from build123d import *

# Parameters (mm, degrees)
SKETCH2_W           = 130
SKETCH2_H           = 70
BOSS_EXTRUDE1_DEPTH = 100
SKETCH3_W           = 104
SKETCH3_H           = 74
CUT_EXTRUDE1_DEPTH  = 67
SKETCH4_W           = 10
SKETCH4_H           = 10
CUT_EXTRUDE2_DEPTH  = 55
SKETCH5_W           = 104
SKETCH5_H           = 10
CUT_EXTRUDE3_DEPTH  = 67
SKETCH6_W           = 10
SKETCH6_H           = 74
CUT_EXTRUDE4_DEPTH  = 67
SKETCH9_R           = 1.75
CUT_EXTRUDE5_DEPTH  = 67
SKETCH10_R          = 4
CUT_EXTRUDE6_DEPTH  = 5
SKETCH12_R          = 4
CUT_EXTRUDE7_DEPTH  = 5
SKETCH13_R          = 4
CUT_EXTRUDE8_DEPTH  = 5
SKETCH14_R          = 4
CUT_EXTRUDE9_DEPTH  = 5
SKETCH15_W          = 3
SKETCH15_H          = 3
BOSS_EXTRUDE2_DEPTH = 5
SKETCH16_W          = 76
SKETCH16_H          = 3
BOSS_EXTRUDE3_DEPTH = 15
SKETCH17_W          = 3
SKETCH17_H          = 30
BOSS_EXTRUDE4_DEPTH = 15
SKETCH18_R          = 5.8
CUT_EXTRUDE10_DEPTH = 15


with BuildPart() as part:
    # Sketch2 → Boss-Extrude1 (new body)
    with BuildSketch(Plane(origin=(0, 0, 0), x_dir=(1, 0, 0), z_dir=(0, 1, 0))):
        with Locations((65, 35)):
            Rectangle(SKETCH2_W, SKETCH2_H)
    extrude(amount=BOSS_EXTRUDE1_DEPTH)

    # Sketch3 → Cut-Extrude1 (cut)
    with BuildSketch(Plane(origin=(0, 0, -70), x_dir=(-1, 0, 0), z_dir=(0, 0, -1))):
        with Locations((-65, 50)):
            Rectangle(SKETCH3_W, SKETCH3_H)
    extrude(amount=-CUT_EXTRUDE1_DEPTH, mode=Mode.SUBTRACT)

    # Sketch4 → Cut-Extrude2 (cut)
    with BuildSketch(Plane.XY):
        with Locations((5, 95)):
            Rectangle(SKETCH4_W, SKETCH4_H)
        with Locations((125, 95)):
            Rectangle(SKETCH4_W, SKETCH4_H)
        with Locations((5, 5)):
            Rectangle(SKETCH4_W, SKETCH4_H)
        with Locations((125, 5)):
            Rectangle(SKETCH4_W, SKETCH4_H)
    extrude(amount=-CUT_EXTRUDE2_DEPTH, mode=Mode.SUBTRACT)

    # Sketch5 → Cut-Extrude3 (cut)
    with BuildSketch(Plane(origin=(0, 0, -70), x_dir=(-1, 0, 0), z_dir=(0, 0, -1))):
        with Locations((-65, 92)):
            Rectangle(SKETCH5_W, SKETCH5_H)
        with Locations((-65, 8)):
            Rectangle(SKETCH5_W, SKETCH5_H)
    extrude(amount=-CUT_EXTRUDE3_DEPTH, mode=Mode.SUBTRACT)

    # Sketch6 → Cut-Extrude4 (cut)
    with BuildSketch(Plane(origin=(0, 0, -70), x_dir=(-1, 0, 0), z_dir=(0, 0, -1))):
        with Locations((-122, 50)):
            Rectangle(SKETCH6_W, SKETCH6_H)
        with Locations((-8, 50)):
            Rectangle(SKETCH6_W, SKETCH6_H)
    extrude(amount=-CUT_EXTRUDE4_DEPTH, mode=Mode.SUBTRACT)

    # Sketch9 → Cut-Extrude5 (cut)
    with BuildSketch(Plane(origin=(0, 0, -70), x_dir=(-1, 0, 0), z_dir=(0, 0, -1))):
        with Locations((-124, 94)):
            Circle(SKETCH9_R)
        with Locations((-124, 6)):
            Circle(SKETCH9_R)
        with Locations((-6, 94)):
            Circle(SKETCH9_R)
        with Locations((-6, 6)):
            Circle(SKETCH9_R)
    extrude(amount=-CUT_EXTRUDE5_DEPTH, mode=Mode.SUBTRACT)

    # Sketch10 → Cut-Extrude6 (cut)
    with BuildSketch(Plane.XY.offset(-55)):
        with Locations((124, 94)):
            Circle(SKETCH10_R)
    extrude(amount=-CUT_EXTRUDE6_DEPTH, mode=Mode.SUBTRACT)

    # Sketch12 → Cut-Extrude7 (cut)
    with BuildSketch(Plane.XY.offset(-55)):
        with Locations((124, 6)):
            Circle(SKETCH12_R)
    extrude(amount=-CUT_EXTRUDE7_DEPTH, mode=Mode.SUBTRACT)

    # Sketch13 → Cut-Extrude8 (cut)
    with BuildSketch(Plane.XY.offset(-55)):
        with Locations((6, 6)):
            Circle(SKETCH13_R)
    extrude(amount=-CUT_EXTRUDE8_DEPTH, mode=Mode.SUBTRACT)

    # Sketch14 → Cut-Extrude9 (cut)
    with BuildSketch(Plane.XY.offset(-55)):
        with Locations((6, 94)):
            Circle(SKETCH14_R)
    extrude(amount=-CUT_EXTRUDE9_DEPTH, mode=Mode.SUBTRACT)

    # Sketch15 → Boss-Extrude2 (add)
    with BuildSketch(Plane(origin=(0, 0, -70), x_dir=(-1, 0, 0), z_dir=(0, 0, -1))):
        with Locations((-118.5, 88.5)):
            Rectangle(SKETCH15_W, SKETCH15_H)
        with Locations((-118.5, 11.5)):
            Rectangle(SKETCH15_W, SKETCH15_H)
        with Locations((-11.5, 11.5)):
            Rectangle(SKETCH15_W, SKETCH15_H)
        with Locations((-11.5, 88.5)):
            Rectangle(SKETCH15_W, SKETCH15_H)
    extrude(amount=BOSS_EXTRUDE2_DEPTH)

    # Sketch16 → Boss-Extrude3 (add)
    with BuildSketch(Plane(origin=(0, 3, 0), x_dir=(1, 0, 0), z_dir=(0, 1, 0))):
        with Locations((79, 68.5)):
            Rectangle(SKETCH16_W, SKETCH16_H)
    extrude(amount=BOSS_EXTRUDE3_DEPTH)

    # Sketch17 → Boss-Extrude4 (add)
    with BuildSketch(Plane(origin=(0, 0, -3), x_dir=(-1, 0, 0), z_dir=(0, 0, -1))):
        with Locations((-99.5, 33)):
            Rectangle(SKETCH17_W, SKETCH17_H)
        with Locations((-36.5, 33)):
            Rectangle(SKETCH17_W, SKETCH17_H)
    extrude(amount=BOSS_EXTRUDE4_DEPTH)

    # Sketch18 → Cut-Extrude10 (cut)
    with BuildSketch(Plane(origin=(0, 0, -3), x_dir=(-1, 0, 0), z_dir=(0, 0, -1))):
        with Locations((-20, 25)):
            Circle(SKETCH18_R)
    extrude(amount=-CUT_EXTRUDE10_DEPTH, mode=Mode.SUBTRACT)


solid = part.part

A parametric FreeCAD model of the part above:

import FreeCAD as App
import Part
import Sketcher

V = App.Vector
Q = App.Units.Quantity

doc = App.newDocument("Part")
body = doc.addObject("PartDesign::Body", "Body")

sketch1 = doc.addObject("Sketcher::SketchObject", "Sketch")
body.addObject(sketch1)
sketch1.AttachmentSupport = (doc.XZ_Plane, [""])
sketch1.MapMode = "FlatFace"
sketch1.addGeometry(Part.LineSegment(V(0, -70, 0), V(0, 0, 0)), False)
sketch1.addGeometry(Part.LineSegment(V(0, 0, 0), V(130, 0, 0)), False)
sketch1.addGeometry(Part.LineSegment(V(130, 0, 0), V(130, -70, 0)), False)
sketch1.addGeometry(Part.LineSegment(V(130, -70, 0), V(0, -70, 0)), False)
sketch1.addConstraint(Sketcher.Constraint("Coincident", 0, 2, 1, 1))
sketch1.addConstraint(Sketcher.Constraint("Coincident", 1, 2, 2, 1))
sketch1.addConstraint(Sketcher.Constraint("Coincident", 2, 2, 3, 1))
sketch1.addConstraint(Sketcher.Constraint("Coincident", 3, 2, 0, 1))
sketch1.addConstraint(Sketcher.Constraint("Vertical", 0))
sketch1.addConstraint(Sketcher.Constraint("Horizontal", 1))
sketch1.addConstraint(Sketcher.Constraint("Vertical", 2))
sketch1.addConstraint(Sketcher.Constraint("Horizontal", 3))
sketch1.addConstraint(Sketcher.Constraint("Coincident", 0, 2, -1, 1))
sketch1.addConstraint(Sketcher.Constraint("DistanceX", 1, 1, 1, 2, Q("130 mm")))
sketch1.addConstraint(Sketcher.Constraint("DistanceY", 0, 1, 0, 2, Q("70 mm")))
pad1 = doc.addObject("PartDesign::Pad", "Pad")
body.addObject(pad1)
pad1.Profile = sketch1
pad1.Length = 100
pad1.Reversed = True

sketch2 = doc.addObject("Sketcher::SketchObject", "Sketch001")
body.addObject(sketch2)
sketch2.AttachmentSupport = (doc.XY_Plane, [""])
sketch2.MapMode = "FlatFace"
sketch2.AttachmentOffset = App.Placement(V(0, 0, -70), App.Rotation())
sketch2.addGeometry(Part.LineSegment(V(117, 87, 0), V(117, 13, 0)), False)
sketch2.addGeometry(Part.LineSegment(V(117, 13, 0), V(13, 13, 0)), False)
sketch2.addGeometry(Part.LineSegment(V(13, 13, 0), V(13, 87, 0)), False)
sketch2.addGeometry(Part.LineSegment(V(13, 87, 0), V(117, 87, 0)), False)
sketch2.addConstraint(Sketcher.Constraint("Coincident", 0, 2, 1, 1))
sketch2.addConstraint(Sketcher.Constraint("Coincident", 1, 2, 2, 1))
sketch2.addConstraint(Sketcher.Constraint("Coincident", 2, 2, 3, 1))
sketch2.addConstraint(Sketcher.Constraint("Coincident", 3, 2, 0, 1))
sketch2.addConstraint(Sketcher.Constraint("Vertical", 0))
sketch2.addConstraint(Sketcher.Constraint("Horizontal", 1))
sketch2.addConstraint(Sketcher.Constraint("Vertical", 2))
sketch2.addConstraint(Sketcher.Constraint("Horizontal", 3))
sketch2.addConstraint(Sketcher.Constraint("DistanceX", 1, 2, 1, 1, Q("104 mm")))
sketch2.addConstraint(Sketcher.Constraint("DistanceY", 0, 2, 0, 1, Q("74 mm")))
sketch2.addConstraint(Sketcher.Constraint("DistanceX", -1, 1, 0, 2, Q("117 mm")))
sketch2.addConstraint(Sketcher.Constraint("DistanceY", -1, 1, 0, 2, Q("13 mm")))
pocket1 = doc.addObject("PartDesign::Pocket", "Pocket")
body.addObject(pocket1)
pocket1.Profile = sketch2
pocket1.Length = 67
pocket1.Reversed = True

sketch3 = doc.addObject("Sketcher::SketchObject", "Sketch002")
body.addObject(sketch3)
sketch3.AttachmentSupport = (doc.XY_Plane, [""])
sketch3.MapMode = "FlatFace"
sketch3.addGeometry(Part.LineSegment(V(0, 100, 0), V(0, 90, 0)), False)
sketch3.addGeometry(Part.LineSegment(V(0, 90, 0), V(10, 90, 0)), False)
sketch3.addGeometry(Part.LineSegment(V(10, 90, 0), V(10, 100, 0)), False)
sketch3.addGeometry(Part.LineSegment(V(10, 100, 0), V(0, 100, 0)), False)
sketch3.addGeometry(Part.LineSegment(V(120, 100, 0), V(120, 90, 0)), False)
sketch3.addGeometry(Part.LineSegment(V(120, 90, 0), V(130, 90, 0)), False)
sketch3.addGeometry(Part.LineSegment(V(130, 90, 0), V(130, 100, 0)), False)
sketch3.addGeometry(Part.LineSegment(V(130, 100, 0), V(120, 100, 0)), False)
sketch3.addGeometry(Part.LineSegment(V(0, 10, 0), V(0, 0, 0)), False)
sketch3.addGeometry(Part.LineSegment(V(0, 0, 0), V(10, 0, 0)), False)
sketch3.addGeometry(Part.LineSegment(V(10, 0, 0), V(10, 10, 0)), False)
sketch3.addGeometry(Part.LineSegment(V(10, 10, 0), V(0, 10, 0)), False)
sketch3.addGeometry(Part.LineSegment(V(120, 10, 0), V(120, 0, 0)), False)
sketch3.addGeometry(Part.LineSegment(V(120, 0, 0), V(130, 0, 0)), False)
sketch3.addGeometry(Part.LineSegment(V(130, 0, 0), V(130, 10, 0)), False)
sketch3.addGeometry(Part.LineSegment(V(130, 10, 0), V(120, 10, 0)), False)
sketch3.addConstraint(Sketcher.Constraint("Coincident", 0, 2, 1, 1))
sketch3.addConstraint(Sketcher.Constraint("Coincident", 1, 2, 2, 1))
sketch3.addConstraint(Sketcher.Constraint("Coincident", 2, 2, 3, 1))
sketch3.addConstraint(Sketcher.Constraint("Coincident", 3, 2, 0, 1))
sketch3.addConstraint(Sketcher.Constraint("Coincident", 4, 2, 5, 1))
sketch3.addConstraint(Sketcher.Constraint("Coincident", 5, 2, 6, 1))
sketch3.addConstraint(Sketcher.Constraint("Coincident", 6, 2, 7, 1))
sketch3.addConstraint(Sketcher.Constraint("Coincident", 7, 2, 4, 1))
sketch3.addConstraint(Sketcher.Constraint("Coincident", 8, 2, 9, 1))
sketch3.addConstraint(Sketcher.Constraint("Coincident", 9, 2, 10, 1))
sketch3.addConstraint(Sketcher.Constraint("Coincident", 10, 2, 11, 1))
sketch3.addConstraint(Sketcher.Constraint("Coincident", 11, 2, 8, 1))
sketch3.addConstraint(Sketcher.Constraint("Coincident", 12, 2, 13, 1))
sketch3.addConstraint(Sketcher.Constraint("Coincident", 13, 2, 14, 1))
sketch3.addConstraint(Sketcher.Constraint("Coincident", 14, 2, 15, 1))
sketch3.addConstraint(Sketcher.Constraint("Coincident", 15, 2, 12, 1))
sketch3.addConstraint(Sketcher.Constraint("Vertical", 0))
sketch3.addConstraint(Sketcher.Constraint("Horizontal", 1))
sketch3.addConstraint(Sketcher.Constraint("Vertical", 2))
sketch3.addConstraint(Sketcher.Constraint("Horizontal", 3))
sketch3.addConstraint(Sketcher.Constraint("Vertical", 4))
sketch3.addConstraint(Sketcher.Constraint("Horizontal", 5))
sketch3.addConstraint(Sketcher.Constraint("Vertical", 6))
sketch3.addConstraint(Sketcher.Constraint("Horizontal", 7))
sketch3.addConstraint(Sketcher.Constraint("Vertical", 8))
sketch3.addConstraint(Sketcher.Constraint("Horizontal", 9))
sketch3.addConstraint(Sketcher.Constraint("Vertical", 10))
sketch3.addConstraint(Sketcher.Constraint("Horizontal", 11))
sketch3.addConstraint(Sketcher.Constraint("Vertical", 12))
sketch3.addConstraint(Sketcher.Constraint("Horizontal", 13))
sketch3.addConstraint(Sketcher.Constraint("Vertical", 14))
sketch3.addConstraint(Sketcher.Constraint("Horizontal", 15))
sketch3.addConstraint(Sketcher.Constraint("Coincident", 8, 2, -1, 1))
sketch3.addConstraint(Sketcher.Constraint("PointOnObject", 0, 2, -2))
sketch3.addConstraint(Sketcher.Constraint("PointOnObject", 12, 2, -1))
sketch3.addConstraint(Sketcher.Constraint("Horizontal", 1, 2, 4, 2))
sketch3.addConstraint(Sketcher.Constraint("Horizontal", 3, 2, 6, 2))
sketch3.addConstraint(Sketcher.Constraint("Horizontal", 11, 2, 14, 2))
sketch3.addConstraint(Sketcher.Constraint("Vertical", 2, 2, 9, 2))
sketch3.addConstraint(Sketcher.Constraint("Vertical", 7, 2, 12, 2))
sketch3.addConstraint(Sketcher.Constraint("Vertical", 6, 2, 13, 2))
sketch3.addConstraint(Sketcher.Constraint("Equal", 3, 5))
sketch3.addConstraint(Sketcher.Constraint("Equal", 15, 0))
sketch3.addConstraint(Sketcher.Constraint("Equal", 6, 8))
sketch3.addConstraint(Sketcher.Constraint("DistanceX", 1, 1, 1, 2, Q("10 mm")))
sketch3.addConstraint(Sketcher.Constraint("DistanceY", -1, 1, 0, 2, Q("90 mm")))
sketch3.addConstraint(Sketcher.Constraint("DistanceX", -1, 1, 4, 2, Q("120 mm")))
pocket2 = doc.addObject("PartDesign::Pocket", "Pocket001")
body.addObject(pocket2)
pocket2.Profile = sketch3
pocket2.Length = 55

sketch4 = doc.addObject("Sketcher::SketchObject", "Sketch003")
body.addObject(sketch4)
sketch4.AttachmentSupport = (doc.XY_Plane, [""])
sketch4.MapMode = "FlatFace"
sketch4.AttachmentOffset = App.Placement(V(0, 0, -70), App.Rotation())
sketch4.addGeometry(Part.LineSegment(V(117, 97, 0), V(117, 87, 0)), False)
sketch4.addGeometry(Part.LineSegment(V(117, 87, 0), V(13, 87, 0)), False)
sketch4.addGeometry(Part.LineSegment(V(13, 87, 0), V(13, 97, 0)), False)
sketch4.addGeometry(Part.LineSegment(V(13, 97, 0), V(117, 97, 0)), False)
sketch4.addGeometry(Part.LineSegment(V(117, 13, 0), V(117, 3, 0)), False)
sketch4.addGeometry(Part.LineSegment(V(117, 3, 0), V(13, 3, 0)), False)
sketch4.addGeometry(Part.LineSegment(V(13, 3, 0), V(13, 13, 0)), False)
sketch4.addGeometry(Part.LineSegment(V(13, 13, 0), V(117, 13, 0)), False)
sketch4.addConstraint(Sketcher.Constraint("Coincident", 0, 2, 1, 1))
sketch4.addConstraint(Sketcher.Constraint("Coincident", 1, 2, 2, 1))
sketch4.addConstraint(Sketcher.Constraint("Coincident", 2, 2, 3, 1))
sketch4.addConstraint(Sketcher.Constraint("Coincident", 3, 2, 0, 1))
sketch4.addConstraint(Sketcher.Constraint("Coincident", 4, 2, 5, 1))
sketch4.addConstraint(Sketcher.Constraint("Coincident", 5, 2, 6, 1))
sketch4.addConstraint(Sketcher.Constraint("Coincident", 6, 2, 7, 1))
sketch4.addConstraint(Sketcher.Constraint("Coincident", 7, 2, 4, 1))
sketch4.addConstraint(Sketcher.Constraint("Vertical", 0))
sketch4.addConstraint(Sketcher.Constraint("Horizontal", 1))
sketch4.addConstraint(Sketcher.Constraint("Vertical", 2))
sketch4.addConstraint(Sketcher.Constraint("Horizontal", 3))
sketch4.addConstraint(Sketcher.Constraint("Vertical", 4))
sketch4.addConstraint(Sketcher.Constraint("Horizontal", 5))
sketch4.addConstraint(Sketcher.Constraint("Vertical", 6))
sketch4.addConstraint(Sketcher.Constraint("Horizontal", 7))
sketch4.addConstraint(Sketcher.Constraint("Vertical", 3, 2, 4, 2))
sketch4.addConstraint(Sketcher.Constraint("Vertical", 2, 2, 5, 2))
sketch4.addConstraint(Sketcher.Constraint("Equal", 2, 4))
sketch4.addConstraint(Sketcher.Constraint("DistanceX", 1, 2, 1, 1, Q("104 mm")))
sketch4.addConstraint(Sketcher.Constraint("DistanceY", 0, 2, 0, 1, Q("10 mm")))
sketch4.addConstraint(Sketcher.Constraint("DistanceX", -1, 1, 0, 2, Q("117 mm")))
sketch4.addConstraint(Sketcher.Constraint("DistanceY", -1, 1, 0, 2, Q("87 mm")))
sketch4.addConstraint(Sketcher.Constraint("DistanceY", -1, 1, 4, 2, Q("3 mm")))
pocket3 = doc.addObject("PartDesign::Pocket", "Pocket002")
body.addObject(pocket3)
pocket3.Profile = sketch4
pocket3.Length = 67
pocket3.Reversed = True

sketch5 = doc.addObject("Sketcher::SketchObject", "Sketch004")
body.addObject(sketch5)
sketch5.AttachmentSupport = (doc.XY_Plane, [""])
sketch5.MapMode = "FlatFace"
sketch5.AttachmentOffset = App.Placement(V(0, 0, -70), App.Rotation())
sketch5.addGeometry(Part.LineSegment(V(127, 87, 0), V(127, 13, 0)), False)
sketch5.addGeometry(Part.LineSegment(V(127, 13, 0), V(117, 13, 0)), False)
sketch5.addGeometry(Part.LineSegment(V(117, 13, 0), V(117, 87, 0)), False)
sketch5.addGeometry(Part.LineSegment(V(117, 87, 0), V(127, 87, 0)), False)
sketch5.addGeometry(Part.LineSegment(V(13, 87, 0), V(13, 13, 0)), False)
sketch5.addGeometry(Part.LineSegment(V(13, 13, 0), V(3, 13, 0)), False)
sketch5.addGeometry(Part.LineSegment(V(3, 13, 0), V(3, 87, 0)), False)
sketch5.addGeometry(Part.LineSegment(V(3, 87, 0), V(13, 87, 0)), False)
sketch5.addConstraint(Sketcher.Constraint("Coincident", 0, 2, 1, 1))
sketch5.addConstraint(Sketcher.Constraint("Coincident", 1, 2, 2, 1))
sketch5.addConstraint(Sketcher.Constraint("Coincident", 2, 2, 3, 1))
sketch5.addConstraint(Sketcher.Constraint("Coincident", 3, 2, 0, 1))
sketch5.addConstraint(Sketcher.Constraint("Coincident", 4, 2, 5, 1))
sketch5.addConstraint(Sketcher.Constraint("Coincident", 5, 2, 6, 1))
sketch5.addConstraint(Sketcher.Constraint("Coincident", 6, 2, 7, 1))
sketch5.addConstraint(Sketcher.Constraint("Coincident", 7, 2, 4, 1))
sketch5.addConstraint(Sketcher.Constraint("Vertical", 0))
sketch5.addConstraint(Sketcher.Constraint("Horizontal", 1))
sketch5.addConstraint(Sketcher.Constraint("Vertical", 2))
sketch5.addConstraint(Sketcher.Constraint("Horizontal", 3))
sketch5.addConstraint(Sketcher.Constraint("Vertical", 4))
sketch5.addConstraint(Sketcher.Constraint("Horizontal", 5))
sketch5.addConstraint(Sketcher.Constraint("Vertical", 6))
sketch5.addConstraint(Sketcher.Constraint("Horizontal", 7))
sketch5.addConstraint(Sketcher.Constraint("Horizontal", 1, 2, 4, 2))
sketch5.addConstraint(Sketcher.Constraint("Horizontal", 3, 2, 6, 2))
sketch5.addConstraint(Sketcher.Constraint("Equal", 3, 5))
sketch5.addConstraint(Sketcher.Constraint("DistanceX", 1, 2, 1, 1, Q("10 mm")))
sketch5.addConstraint(Sketcher.Constraint("DistanceY", 0, 2, 0, 1, Q("74 mm")))
sketch5.addConstraint(Sketcher.Constraint("DistanceX", -1, 1, 0, 2, Q("127 mm")))
sketch5.addConstraint(Sketcher.Constraint("DistanceY", -1, 1, 0, 2, Q("13 mm")))
sketch5.addConstraint(Sketcher.Constraint("DistanceX", -1, 1, 4, 2, Q("13 mm")))
pocket4 = doc.addObject("PartDesign::Pocket", "Pocket003")
body.addObject(pocket4)
pocket4.Profile = sketch5
pocket4.Length = 67
pocket4.Reversed = True

sketch6 = doc.addObject("Sketcher::SketchObject", "Sketch005")
body.addObject(sketch6)
sketch6.AttachmentSupport = (doc.XY_Plane, [""])
sketch6.MapMode = "FlatFace"
sketch6.AttachmentOffset = App.Placement(V(0, 0, -70), App.Rotation())
sketch6.addGeometry(Part.Circle(V(124, 94, 0), V(0, 0, 1), 1.8), False)
sketch6.addGeometry(Part.Circle(V(124, 6, 0), V(0, 0, 1), 1.8), False)
sketch6.addGeometry(Part.Circle(V(6, 94, 0), V(0, 0, 1), 1.8), False)
sketch6.addGeometry(Part.Circle(V(6, 6, 0), V(0, 0, 1), 1.8), False)
sketch6.addConstraint(Sketcher.Constraint("Equal", 0, 1))
sketch6.addConstraint(Sketcher.Constraint("Equal", 1, 2))
sketch6.addConstraint(Sketcher.Constraint("Equal", 2, 3))
sketch6.addConstraint(Sketcher.Constraint("Horizontal", 0, 3, 2, 3))
sketch6.addConstraint(Sketcher.Constraint("Horizontal", 1, 3, 3, 3))
sketch6.addConstraint(Sketcher.Constraint("Vertical", 0, 3, 1, 3))
sketch6.addConstraint(Sketcher.Constraint("Vertical", 2, 3, 3, 3))
sketch6.addConstraint(Sketcher.Constraint("Diameter", 0, Q("3.5 mm")))
sketch6.addConstraint(Sketcher.Constraint("DistanceX", -1, 1, 0, 3, Q("124 mm")))
sketch6.addConstraint(Sketcher.Constraint("DistanceY", -1, 1, 0, 3, Q("94 mm")))
sketch6.addConstraint(Sketcher.Constraint("DistanceY", -1, 1, 1, 3, Q("6 mm")))
sketch6.addConstraint(Sketcher.Constraint("DistanceX", -1, 1, 2, 3, Q("6 mm")))
pocket5 = doc.addObject("PartDesign::Pocket", "Pocket004")
body.addObject(pocket5)
pocket5.Profile = sketch6
pocket5.Length = 67
pocket5.Reversed = True

sketch7 = doc.addObject("Sketcher::SketchObject", "Sketch006")
body.addObject(sketch7)
sketch7.AttachmentSupport = (doc.XY_Plane, [""])
sketch7.MapMode = "FlatFace"
sketch7.AttachmentOffset = App.Placement(V(0, 0, -55), App.Rotation())
sketch7.addGeometry(Part.Circle(V(124, 94, 0), V(0, 0, 1), 4), False)
sketch7.addConstraint(Sketcher.Constraint("Diameter", 0, Q("8 mm")))
sketch7.addConstraint(Sketcher.Constraint("DistanceX", -1, 1, 0, 3, Q("124 mm")))
sketch7.addConstraint(Sketcher.Constraint("DistanceY", -1, 1, 0, 3, Q("94 mm")))
pocket6 = doc.addObject("PartDesign::Pocket", "Pocket005")
body.addObject(pocket6)
pocket6.Profile = sketch7
pocket6.Length = 5

sketch8 = doc.addObject("Sketcher::SketchObject", "Sketch007")
body.addObject(sketch8)
sketch8.AttachmentSupport = (doc.XY_Plane, [""])
sketch8.MapMode = "FlatFace"
sketch8.AttachmentOffset = App.Placement(V(0, 0, -55), App.Rotation())
sketch8.addGeometry(Part.Circle(V(124, 6, 0), V(0, 0, 1), 4), False)
sketch8.addConstraint(Sketcher.Constraint("Diameter", 0, Q("8 mm")))
sketch8.addConstraint(Sketcher.Constraint("DistanceX", -1, 1, 0, 3, Q("124 mm")))
sketch8.addConstraint(Sketcher.Constraint("DistanceY", -1, 1, 0, 3, Q("6 mm")))
pocket7 = doc.addObject("PartDesign::Pocket", "Pocket006")
body.addObject(pocket7)
pocket7.Profile = sketch8
pocket7.Length = 5

sketch9 = doc.addObject("Sketcher::SketchObject", "Sketch008")
body.addObject(sketch9)
sketch9.AttachmentSupport = (doc.XY_Plane, [""])
sketch9.MapMode = "FlatFace"
sketch9.AttachmentOffset = App.Placement(V(0, 0, -55), App.Rotation())
sketch9.addGeometry(Part.Circle(V(6, 6, 0), V(0, 0, 1), 4), False)
sketch9.addConstraint(Sketcher.Constraint("Diameter", 0, Q("8 mm")))
sketch9.addConstraint(Sketcher.Constraint("DistanceX", -1, 1, 0, 3, Q("6 mm")))
sketch9.addConstraint(Sketcher.Constraint("DistanceY", -1, 1, 0, 3, Q("6 mm")))
pocket8 = doc.addObject("PartDesign::Pocket", "Pocket007")
body.addObject(pocket8)
pocket8.Profile = sketch9
pocket8.Length = 5

sketch10 = doc.addObject("Sketcher::SketchObject", "Sketch009")
body.addObject(sketch10)
sketch10.AttachmentSupport = (doc.XY_Plane, [""])
sketch10.MapMode = "FlatFace"
sketch10.AttachmentOffset = App.Placement(V(0, 0, -55), App.Rotation())
sketch10.addGeometry(Part.Circle(V(6, 94, 0), V(0, 0, 1), 4), False)
sketch10.addConstraint(Sketcher.Constraint("Diameter", 0, Q("8 mm")))
sketch10.addConstraint(Sketcher.Constraint("DistanceX", -1, 1, 0, 3, Q("6 mm")))
sketch10.addConstraint(Sketcher.Constraint("DistanceY", -1, 1, 0, 3, Q("94 mm")))
pocket9 = doc.addObject("PartDesign::Pocket", "Pocket008")
body.addObject(pocket9)
pocket9.Profile = sketch10
pocket9.Length = 5

sketch11 = doc.addObject("Sketcher::SketchObject", "Sketch010")
body.addObject(sketch11)
sketch11.AttachmentSupport = (doc.XY_Plane, [""])
sketch11.MapMode = "FlatFace"
sketch11.AttachmentOffset = App.Placement(V(0, 0, -70), App.Rotation())
sketch11.addGeometry(Part.LineSegment(V(120, 90, 0), V(120, 87, 0)), False)
sketch11.addGeometry(Part.LineSegment(V(120, 87, 0), V(117, 87, 0)), False)
sketch11.addGeometry(Part.LineSegment(V(117, 87, 0), V(117, 90, 0)), False)
sketch11.addGeometry(Part.LineSegment(V(117, 90, 0), V(120, 90, 0)), False)
sketch11.addGeometry(Part.LineSegment(V(120, 13, 0), V(120, 10, 0)), False)
sketch11.addGeometry(Part.LineSegment(V(120, 10, 0), V(117, 10, 0)), False)
sketch11.addGeometry(Part.LineSegment(V(117, 10, 0), V(117, 13, 0)), False)
sketch11.addGeometry(Part.LineSegment(V(117, 13, 0), V(120, 13, 0)), False)
sketch11.addGeometry(Part.LineSegment(V(13, 13, 0), V(13, 10, 0)), False)
sketch11.addGeometry(Part.LineSegment(V(13, 10, 0), V(10, 10, 0)), False)
sketch11.addGeometry(Part.LineSegment(V(10, 10, 0), V(10, 13, 0)), False)
sketch11.addGeometry(Part.LineSegment(V(10, 13, 0), V(13, 13, 0)), False)
sketch11.addGeometry(Part.LineSegment(V(13, 90, 0), V(13, 87, 0)), False)
sketch11.addGeometry(Part.LineSegment(V(13, 87, 0), V(10, 87, 0)), False)
sketch11.addGeometry(Part.LineSegment(V(10, 87, 0), V(10, 90, 0)), False)
sketch11.addGeometry(Part.LineSegment(V(10, 90, 0), V(13, 90, 0)), False)
sketch11.addConstraint(Sketcher.Constraint("Coincident", 0, 2, 1, 1))
sketch11.addConstraint(Sketcher.Constraint("Coincident", 1, 2, 2, 1))
sketch11.addConstraint(Sketcher.Constraint("Coincident", 2, 2, 3, 1))
sketch11.addConstraint(Sketcher.Constraint("Coincident", 3, 2, 0, 1))
sketch11.addConstraint(Sketcher.Constraint("Coincident", 4, 2, 5, 1))
sketch11.addConstraint(Sketcher.Constraint("Coincident", 5, 2, 6, 1))
sketch11.addConstraint(Sketcher.Constraint("Coincident", 6, 2, 7, 1))
sketch11.addConstraint(Sketcher.Constraint("Coincident", 7, 2, 4, 1))
sketch11.addConstraint(Sketcher.Constraint("Coincident", 8, 2, 9, 1))
sketch11.addConstraint(Sketcher.Constraint("Coincident", 9, 2, 10, 1))
sketch11.addConstraint(Sketcher.Constraint("Coincident", 10, 2, 11, 1))
sketch11.addConstraint(Sketcher.Constraint("Coincident", 11, 2, 8, 1))
sketch11.addConstraint(Sketcher.Constraint("Coincident", 12, 2, 13, 1))
sketch11.addConstraint(Sketcher.Constraint("Coincident", 13, 2, 14, 1))
sketch11.addConstraint(Sketcher.Constraint("Coincident", 14, 2, 15, 1))
sketch11.addConstraint(Sketcher.Constraint("Coincident", 15, 2, 12, 1))
sketch11.addConstraint(Sketcher.Constraint("Vertical", 0))
sketch11.addConstraint(Sketcher.Constraint("Horizontal", 1))
sketch11.addConstraint(Sketcher.Constraint("Vertical", 2))
sketch11.addConstraint(Sketcher.Constraint("Horizontal", 3))
sketch11.addConstraint(Sketcher.Constraint("Vertical", 4))
sketch11.addConstraint(Sketcher.Constraint("Horizontal", 5))
sketch11.addConstraint(Sketcher.Constraint("Vertical", 6))
sketch11.addConstraint(Sketcher.Constraint("Horizontal", 7))
sketch11.addConstraint(Sketcher.Constraint("Vertical", 8))
sketch11.addConstraint(Sketcher.Constraint("Horizontal", 9))
sketch11.addConstraint(Sketcher.Constraint("Vertical", 10))
sketch11.addConstraint(Sketcher.Constraint("Horizontal", 11))
sketch11.addConstraint(Sketcher.Constraint("Vertical", 12))
sketch11.addConstraint(Sketcher.Constraint("Horizontal", 13))
sketch11.addConstraint(Sketcher.Constraint("Vertical", 14))
sketch11.addConstraint(Sketcher.Constraint("Horizontal", 15))
sketch11.addConstraint(Sketcher.Constraint("Horizontal", 5, 2, 8, 2))
sketch11.addConstraint(Sketcher.Constraint("Horizontal", 7, 2, 10, 2))
sketch11.addConstraint(Sketcher.Constraint("Horizontal", 1, 2, 12, 2))
sketch11.addConstraint(Sketcher.Constraint("Horizontal", 3, 2, 14, 2))
sketch11.addConstraint(Sketcher.Constraint("Vertical", 3, 2, 4, 2))
sketch11.addConstraint(Sketcher.Constraint("Vertical", 2, 2, 5, 2))
sketch11.addConstraint(Sketcher.Constraint("Vertical", 11, 2, 12, 2))
sketch11.addConstraint(Sketcher.Constraint("Vertical", 10, 2, 13, 2))
sketch11.addConstraint(Sketcher.Constraint("Equal", 7, 9))
sketch11.addConstraint(Sketcher.Constraint("Equal", 15, 0))
sketch11.addConstraint(Sketcher.Constraint("Equal", 2, 4))
sketch11.addConstraint(Sketcher.Constraint("DistanceX", 1, 2, 1, 1, Q("3 mm")))
sketch11.addConstraint(Sketcher.Constraint("DistanceX", -1, 1, 0, 2, Q("120 mm")))
sketch11.addConstraint(Sketcher.Constraint("DistanceY", -1, 1, 0, 2, Q("87 mm")))
sketch11.addConstraint(Sketcher.Constraint("DistanceY", -1, 1, 4, 2, Q("10 mm")))
sketch11.addConstraint(Sketcher.Constraint("DistanceX", -1, 1, 8, 2, Q("13 mm")))
pad2 = doc.addObject("PartDesign::Pad", "Pad001")
body.addObject(pad2)
pad2.Profile = sketch11
pad2.Length = 5
pad2.Reversed = True

sketch12 = doc.addObject("Sketcher::SketchObject", "Sketch011")
body.addObject(sketch12)
sketch12.AttachmentSupport = (doc.XZ_Plane, [""])
sketch12.MapMode = "FlatFace"
sketch12.AttachmentOffset = App.Placement(V(0, 0, -3), App.Rotation())
sketch12.addGeometry(Part.LineSegment(V(41, -70, 0), V(41, -67, 0)), False)
sketch12.addGeometry(Part.LineSegment(V(41, -67, 0), V(117, -67, 0)), False)
sketch12.addGeometry(Part.LineSegment(V(117, -67, 0), V(117, -70, 0)), False)
sketch12.addGeometry(Part.LineSegment(V(117, -70, 0), V(41, -70, 0)), False)
sketch12.addConstraint(Sketcher.Constraint("Coincident", 0, 2, 1, 1))
sketch12.addConstraint(Sketcher.Constraint("Coincident", 1, 2, 2, 1))
sketch12.addConstraint(Sketcher.Constraint("Coincident", 2, 2, 3, 1))
sketch12.addConstraint(Sketcher.Constraint("Coincident", 3, 2, 0, 1))
sketch12.addConstraint(Sketcher.Constraint("Vertical", 0))
sketch12.addConstraint(Sketcher.Constraint("Horizontal", 1))
sketch12.addConstraint(Sketcher.Constraint("Vertical", 2))
sketch12.addConstraint(Sketcher.Constraint("Horizontal", 3))
sketch12.addConstraint(Sketcher.Constraint("DistanceX", 1, 1, 1, 2, Q("76 mm")))
sketch12.addConstraint(Sketcher.Constraint("DistanceY", 0, 1, 0, 2, Q("3 mm")))
sketch12.addConstraint(Sketcher.Constraint("DistanceX", -1, 1, 0, 2, Q("41 mm")))
sketch12.addConstraint(Sketcher.Constraint("DistanceY", 0, 2, -1, 1, Q("67 mm")))
pad3 = doc.addObject("PartDesign::Pad", "Pad002")
body.addObject(pad3)
pad3.Profile = sketch12
pad3.Length = 15
pad3.Reversed = True

sketch13 = doc.addObject("Sketcher::SketchObject", "Sketch012")
body.addObject(sketch13)
sketch13.AttachmentSupport = (doc.XY_Plane, [""])
sketch13.MapMode = "FlatFace"
sketch13.AttachmentOffset = App.Placement(V(0, 0, -3), App.Rotation())
sketch13.addGeometry(Part.LineSegment(V(101, 48, 0), V(101, 18, 0)), False)
sketch13.addGeometry(Part.LineSegment(V(101, 18, 0), V(98, 18, 0)), False)
sketch13.addGeometry(Part.LineSegment(V(98, 18, 0), V(98, 48, 0)), False)
sketch13.addGeometry(Part.LineSegment(V(98, 48, 0), V(101, 48, 0)), False)
sketch13.addGeometry(Part.LineSegment(V(38, 48, 0), V(38, 18, 0)), False)
sketch13.addGeometry(Part.LineSegment(V(38, 18, 0), V(35, 18, 0)), False)
sketch13.addGeometry(Part.LineSegment(V(35, 18, 0), V(35, 48, 0)), False)
sketch13.addGeometry(Part.LineSegment(V(35, 48, 0), V(38, 48, 0)), False)
sketch13.addConstraint(Sketcher.Constraint("Coincident", 0, 2, 1, 1))
sketch13.addConstraint(Sketcher.Constraint("Coincident", 1, 2, 2, 1))
sketch13.addConstraint(Sketcher.Constraint("Coincident", 2, 2, 3, 1))
sketch13.addConstraint(Sketcher.Constraint("Coincident", 3, 2, 0, 1))
sketch13.addConstraint(Sketcher.Constraint("Coincident", 4, 2, 5, 1))
sketch13.addConstraint(Sketcher.Constraint("Coincident", 5, 2, 6, 1))
sketch13.addConstraint(Sketcher.Constraint("Coincident", 6, 2, 7, 1))
sketch13.addConstraint(Sketcher.Constraint("Coincident", 7, 2, 4, 1))
sketch13.addConstraint(Sketcher.Constraint("Vertical", 0))
sketch13.addConstraint(Sketcher.Constraint("Horizontal", 1))
sketch13.addConstraint(Sketcher.Constraint("Vertical", 2))
sketch13.addConstraint(Sketcher.Constraint("Horizontal", 3))
sketch13.addConstraint(Sketcher.Constraint("Vertical", 4))
sketch13.addConstraint(Sketcher.Constraint("Horizontal", 5))
sketch13.addConstraint(Sketcher.Constraint("Vertical", 6))
sketch13.addConstraint(Sketcher.Constraint("Horizontal", 7))
sketch13.addConstraint(Sketcher.Constraint("Horizontal", 1, 2, 4, 2))
sketch13.addConstraint(Sketcher.Constraint("Horizontal", 3, 2, 6, 2))
sketch13.addConstraint(Sketcher.Constraint("Equal", 3, 5))
sketch13.addConstraint(Sketcher.Constraint("DistanceX", 1, 2, 1, 1, Q("3 mm")))
sketch13.addConstraint(Sketcher.Constraint("DistanceY", 0, 2, 0, 1, Q("30 mm")))
sketch13.addConstraint(Sketcher.Constraint("DistanceX", -1, 1, 0, 2, Q("101 mm")))
sketch13.addConstraint(Sketcher.Constraint("DistanceY", -1, 1, 0, 2, Q("18 mm")))
sketch13.addConstraint(Sketcher.Constraint("DistanceX", -1, 1, 4, 2, Q("38 mm")))
pad4 = doc.addObject("PartDesign::Pad", "Pad003")
body.addObject(pad4)
pad4.Profile = sketch13
pad4.Length = 15
pad4.Reversed = True

sketch14 = doc.addObject("Sketcher::SketchObject", "Sketch013")
body.addObject(sketch14)
sketch14.AttachmentSupport = (doc.XY_Plane, [""])
sketch14.MapMode = "FlatFace"
sketch14.AttachmentOffset = App.Placement(V(0, 0, -3), App.Rotation())
sketch14.addGeometry(Part.Circle(V(20, 25, 0), V(0, 0, 1), 6), False)
sketch14.addConstraint(Sketcher.Constraint("Diameter", 0, Q("11.6 mm")))
sketch14.addConstraint(Sketcher.Constraint("DistanceX", -1, 1, 0, 3, Q("20 mm")))
sketch14.addConstraint(Sketcher.Constraint("DistanceY", -1, 1, 0, 3, Q("25 mm")))
pocket10 = doc.addObject("PartDesign::Pocket", "Pocket009")
body.addObject(pocket10)
pocket10.Profile = sketch14
pocket10.Length = 15
pocket10.Reversed = True

doc.recompute()
